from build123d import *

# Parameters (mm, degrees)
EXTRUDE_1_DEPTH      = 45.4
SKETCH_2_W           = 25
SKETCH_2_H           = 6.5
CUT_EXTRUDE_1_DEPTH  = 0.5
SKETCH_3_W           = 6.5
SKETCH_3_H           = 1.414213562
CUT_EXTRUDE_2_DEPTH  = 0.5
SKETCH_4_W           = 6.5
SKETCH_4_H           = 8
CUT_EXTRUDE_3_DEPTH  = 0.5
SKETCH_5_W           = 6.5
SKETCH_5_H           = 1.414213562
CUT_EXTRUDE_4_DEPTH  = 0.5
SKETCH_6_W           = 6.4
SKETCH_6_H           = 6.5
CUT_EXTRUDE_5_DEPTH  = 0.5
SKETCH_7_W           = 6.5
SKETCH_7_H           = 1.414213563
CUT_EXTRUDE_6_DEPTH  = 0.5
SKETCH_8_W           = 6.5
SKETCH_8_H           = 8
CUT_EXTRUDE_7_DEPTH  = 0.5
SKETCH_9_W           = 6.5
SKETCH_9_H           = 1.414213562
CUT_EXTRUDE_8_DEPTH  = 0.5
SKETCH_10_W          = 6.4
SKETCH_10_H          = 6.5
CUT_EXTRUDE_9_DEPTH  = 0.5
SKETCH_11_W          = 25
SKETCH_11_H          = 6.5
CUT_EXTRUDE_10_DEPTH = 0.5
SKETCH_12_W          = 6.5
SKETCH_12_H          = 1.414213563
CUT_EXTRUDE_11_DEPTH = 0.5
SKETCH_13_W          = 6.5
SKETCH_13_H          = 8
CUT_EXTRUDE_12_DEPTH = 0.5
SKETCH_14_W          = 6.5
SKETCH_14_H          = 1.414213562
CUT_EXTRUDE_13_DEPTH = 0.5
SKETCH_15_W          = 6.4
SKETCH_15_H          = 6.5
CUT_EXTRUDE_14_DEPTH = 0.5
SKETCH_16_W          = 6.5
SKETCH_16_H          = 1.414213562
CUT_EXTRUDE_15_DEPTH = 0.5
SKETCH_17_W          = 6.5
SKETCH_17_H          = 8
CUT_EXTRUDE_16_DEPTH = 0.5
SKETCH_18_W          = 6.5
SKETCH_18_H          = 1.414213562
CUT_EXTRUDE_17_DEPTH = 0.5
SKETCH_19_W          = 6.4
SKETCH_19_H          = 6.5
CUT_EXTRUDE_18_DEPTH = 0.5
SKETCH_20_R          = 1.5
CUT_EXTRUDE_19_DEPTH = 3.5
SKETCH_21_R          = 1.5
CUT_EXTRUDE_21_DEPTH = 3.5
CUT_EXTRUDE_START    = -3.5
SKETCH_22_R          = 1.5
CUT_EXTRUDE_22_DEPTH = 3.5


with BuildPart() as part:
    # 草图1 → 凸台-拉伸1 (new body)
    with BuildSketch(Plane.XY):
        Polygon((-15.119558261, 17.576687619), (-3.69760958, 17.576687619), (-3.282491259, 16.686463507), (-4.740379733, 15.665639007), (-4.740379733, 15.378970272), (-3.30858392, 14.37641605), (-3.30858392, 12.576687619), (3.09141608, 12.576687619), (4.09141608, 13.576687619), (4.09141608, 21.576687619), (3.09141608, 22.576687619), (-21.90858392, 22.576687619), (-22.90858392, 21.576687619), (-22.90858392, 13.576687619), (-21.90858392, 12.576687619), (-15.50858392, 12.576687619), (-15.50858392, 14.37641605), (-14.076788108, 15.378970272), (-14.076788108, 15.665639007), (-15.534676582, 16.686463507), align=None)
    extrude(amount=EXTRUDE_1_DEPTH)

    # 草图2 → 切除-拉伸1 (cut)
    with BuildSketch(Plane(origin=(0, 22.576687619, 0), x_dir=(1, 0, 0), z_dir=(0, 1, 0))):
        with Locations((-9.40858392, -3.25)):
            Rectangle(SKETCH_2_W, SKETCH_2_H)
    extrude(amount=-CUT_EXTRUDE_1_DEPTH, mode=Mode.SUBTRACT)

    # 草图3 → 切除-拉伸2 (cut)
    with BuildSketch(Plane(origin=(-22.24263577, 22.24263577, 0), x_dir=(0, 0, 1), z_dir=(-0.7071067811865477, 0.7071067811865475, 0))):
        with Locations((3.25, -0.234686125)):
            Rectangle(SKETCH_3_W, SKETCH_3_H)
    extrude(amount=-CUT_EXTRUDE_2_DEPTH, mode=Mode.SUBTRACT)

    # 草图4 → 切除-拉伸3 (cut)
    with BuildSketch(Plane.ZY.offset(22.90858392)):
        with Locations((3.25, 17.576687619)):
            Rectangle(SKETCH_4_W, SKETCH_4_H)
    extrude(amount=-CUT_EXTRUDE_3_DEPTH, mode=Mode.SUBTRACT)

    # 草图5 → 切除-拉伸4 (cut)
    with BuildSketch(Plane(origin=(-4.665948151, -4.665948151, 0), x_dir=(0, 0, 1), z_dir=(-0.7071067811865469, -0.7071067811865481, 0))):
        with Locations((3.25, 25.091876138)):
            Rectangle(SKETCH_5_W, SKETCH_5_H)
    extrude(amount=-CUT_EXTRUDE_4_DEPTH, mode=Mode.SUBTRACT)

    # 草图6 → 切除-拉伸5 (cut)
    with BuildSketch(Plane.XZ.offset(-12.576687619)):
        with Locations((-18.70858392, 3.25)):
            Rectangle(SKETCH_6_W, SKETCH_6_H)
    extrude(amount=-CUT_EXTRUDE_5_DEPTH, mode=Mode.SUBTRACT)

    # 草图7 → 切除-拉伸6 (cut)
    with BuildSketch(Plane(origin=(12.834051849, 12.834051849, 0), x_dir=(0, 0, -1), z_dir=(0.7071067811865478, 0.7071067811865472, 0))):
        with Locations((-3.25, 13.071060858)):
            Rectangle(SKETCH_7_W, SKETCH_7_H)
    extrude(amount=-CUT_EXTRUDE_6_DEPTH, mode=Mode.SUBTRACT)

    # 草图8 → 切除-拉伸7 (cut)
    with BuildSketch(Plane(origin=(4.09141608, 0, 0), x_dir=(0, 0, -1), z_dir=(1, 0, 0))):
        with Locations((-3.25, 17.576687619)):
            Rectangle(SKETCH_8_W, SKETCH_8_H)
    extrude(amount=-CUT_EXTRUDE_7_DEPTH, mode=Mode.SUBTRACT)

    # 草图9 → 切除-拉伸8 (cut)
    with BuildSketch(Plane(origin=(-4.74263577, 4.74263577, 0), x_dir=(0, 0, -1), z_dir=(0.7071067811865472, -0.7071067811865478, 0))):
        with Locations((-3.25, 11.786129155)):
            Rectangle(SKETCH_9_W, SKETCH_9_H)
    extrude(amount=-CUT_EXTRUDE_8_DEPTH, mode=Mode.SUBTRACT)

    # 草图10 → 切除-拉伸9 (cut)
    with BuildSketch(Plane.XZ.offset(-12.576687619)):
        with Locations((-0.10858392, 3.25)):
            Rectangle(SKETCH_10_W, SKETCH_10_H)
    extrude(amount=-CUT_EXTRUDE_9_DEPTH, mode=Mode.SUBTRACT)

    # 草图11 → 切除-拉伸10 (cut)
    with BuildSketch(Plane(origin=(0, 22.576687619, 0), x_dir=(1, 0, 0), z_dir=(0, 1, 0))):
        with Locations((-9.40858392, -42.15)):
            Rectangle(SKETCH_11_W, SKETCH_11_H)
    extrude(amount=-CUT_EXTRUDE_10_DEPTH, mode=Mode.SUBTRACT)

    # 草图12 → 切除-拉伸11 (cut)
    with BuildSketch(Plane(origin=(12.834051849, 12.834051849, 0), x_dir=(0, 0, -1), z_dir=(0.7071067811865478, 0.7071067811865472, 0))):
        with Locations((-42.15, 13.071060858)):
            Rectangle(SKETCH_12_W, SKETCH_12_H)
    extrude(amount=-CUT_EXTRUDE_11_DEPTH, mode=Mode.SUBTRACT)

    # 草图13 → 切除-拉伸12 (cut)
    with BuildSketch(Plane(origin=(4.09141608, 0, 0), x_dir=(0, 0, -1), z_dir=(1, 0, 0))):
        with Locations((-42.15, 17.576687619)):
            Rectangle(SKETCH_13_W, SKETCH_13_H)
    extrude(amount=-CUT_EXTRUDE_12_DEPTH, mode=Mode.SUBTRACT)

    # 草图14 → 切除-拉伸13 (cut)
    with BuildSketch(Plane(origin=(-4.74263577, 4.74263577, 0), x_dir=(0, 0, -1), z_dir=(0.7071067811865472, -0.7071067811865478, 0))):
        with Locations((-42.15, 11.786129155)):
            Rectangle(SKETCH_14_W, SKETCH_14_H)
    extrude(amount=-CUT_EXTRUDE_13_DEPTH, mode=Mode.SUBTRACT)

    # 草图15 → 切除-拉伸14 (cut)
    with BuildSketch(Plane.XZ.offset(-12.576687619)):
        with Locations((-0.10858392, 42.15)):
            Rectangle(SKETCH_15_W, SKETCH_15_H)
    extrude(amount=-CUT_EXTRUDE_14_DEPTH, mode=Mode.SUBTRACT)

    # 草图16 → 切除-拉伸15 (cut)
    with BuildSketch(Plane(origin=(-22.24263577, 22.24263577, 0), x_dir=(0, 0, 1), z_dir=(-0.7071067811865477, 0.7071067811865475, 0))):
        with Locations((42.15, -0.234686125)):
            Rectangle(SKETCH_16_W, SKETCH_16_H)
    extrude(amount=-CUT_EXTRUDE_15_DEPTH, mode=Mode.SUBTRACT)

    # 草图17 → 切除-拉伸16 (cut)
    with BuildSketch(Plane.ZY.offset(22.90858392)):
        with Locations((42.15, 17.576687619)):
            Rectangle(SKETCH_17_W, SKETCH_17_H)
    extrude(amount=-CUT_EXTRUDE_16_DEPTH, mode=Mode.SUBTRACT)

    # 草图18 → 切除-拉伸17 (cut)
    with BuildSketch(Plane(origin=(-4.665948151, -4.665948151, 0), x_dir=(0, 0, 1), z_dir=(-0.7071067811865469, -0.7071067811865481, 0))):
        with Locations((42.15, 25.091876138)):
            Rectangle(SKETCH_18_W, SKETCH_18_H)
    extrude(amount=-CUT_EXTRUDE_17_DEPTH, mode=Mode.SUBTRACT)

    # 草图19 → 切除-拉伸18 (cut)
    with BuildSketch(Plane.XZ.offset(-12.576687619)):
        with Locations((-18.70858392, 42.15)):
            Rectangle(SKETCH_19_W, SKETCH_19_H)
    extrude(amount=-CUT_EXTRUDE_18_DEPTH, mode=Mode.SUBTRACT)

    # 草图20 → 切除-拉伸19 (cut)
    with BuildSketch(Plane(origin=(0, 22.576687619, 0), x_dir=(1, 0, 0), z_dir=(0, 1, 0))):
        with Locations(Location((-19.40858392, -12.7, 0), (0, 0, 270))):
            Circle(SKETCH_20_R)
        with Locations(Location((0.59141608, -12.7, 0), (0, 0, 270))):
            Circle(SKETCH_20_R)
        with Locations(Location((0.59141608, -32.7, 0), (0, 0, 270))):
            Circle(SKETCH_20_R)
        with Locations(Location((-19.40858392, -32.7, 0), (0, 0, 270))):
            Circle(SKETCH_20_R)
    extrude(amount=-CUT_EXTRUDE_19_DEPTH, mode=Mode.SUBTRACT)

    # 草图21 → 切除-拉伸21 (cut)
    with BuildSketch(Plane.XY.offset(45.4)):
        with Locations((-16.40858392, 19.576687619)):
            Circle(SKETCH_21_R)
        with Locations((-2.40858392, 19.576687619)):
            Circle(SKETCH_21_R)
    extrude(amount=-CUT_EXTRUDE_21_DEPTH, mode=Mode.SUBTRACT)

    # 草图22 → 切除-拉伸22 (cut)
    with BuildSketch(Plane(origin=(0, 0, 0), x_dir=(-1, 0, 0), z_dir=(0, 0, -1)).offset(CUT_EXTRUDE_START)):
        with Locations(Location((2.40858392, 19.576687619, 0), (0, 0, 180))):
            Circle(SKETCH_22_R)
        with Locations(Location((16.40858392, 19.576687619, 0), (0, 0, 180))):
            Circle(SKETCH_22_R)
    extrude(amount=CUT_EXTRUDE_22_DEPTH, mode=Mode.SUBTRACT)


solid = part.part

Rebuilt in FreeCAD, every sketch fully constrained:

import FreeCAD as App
import Part
import Sketcher
Q = App.Units.Quantity

doc = App.newDocument("Part")
params = doc.addObject("Spreadsheet::Sheet", "Params")
for row, (alias, value) in enumerate([
    ("sketch1_width", "25 mm"),
    ("sketch1_height", "8 mm"),
    ("sketch1_width2", "6.4 mm"),
    ("pad1_length", "45.4 mm"),
    ("sketch2_width", "25 mm"),
    ("sketch2_height", "6.5 mm"),
    ("pocket1_length", "0.5 mm"),
    ("sketch3_width", "6.5 mm"),
    ("pocket2_length", "0.5 mm"),
    ("sketch4_width", "8 mm"),
    ("sketch4_height", "6.5 mm"),
    ("pocket3_length", "0.5 mm"),
    ("sketch5_width", "6.5 mm"),
    ("pocket4_length", "0.5 mm"),
    ("sketch6_width", "6.4 mm"),
    ("sketch6_height", "6.5 mm"),
    ("pocket5_length", "0.5 mm"),
    ("sketch7_width", "6.5 mm"),
    ("pocket6_length", "0.5 mm"),
    ("sketch8_width", "8 mm"),
    ("sketch8_height", "6.5 mm"),
    ("pocket7_length", "0.5 mm"),
    ("sketch9_width", "6.5 mm"),
    ("pocket8_length", "0.5 mm"),
    ("sketch10_width", "6.4 mm"),
    ("sketch10_height", "6.5 mm"),
    ("pocket9_length", "0.5 mm"),
    ("sketch11_width", "25 mm"),
    ("sketch11_height", "6.5 mm"),
    ("pocket10_length", "0.5 mm"),
    ("sketch12_width", "6.5 mm"),
    ("pocket11_length", "0.5 mm"),
    ("sketch13_width", "8 mm"),
    ("sketch13_height", "6.5 mm"),
    ("pocket12_length", "0.5 mm"),
    ("sketch14_width", "6.5 mm"),
    ("pocket13_length", "0.5 mm"),
    ("sketch15_width", "6.4 mm"),
    ("sketch15_height", "6.5 mm"),
    ("pocket14_length", "0.5 mm"),
    ("sketch16_width", "6.5 mm"),
    ("pocket15_length", "0.5 mm"),
    ("sketch17_width", "8 mm"),
    ("sketch17_height", "6.5 mm"),
    ("pocket16_length", "0.5 mm"),
    ("sketch18_width", "6.5 mm"),
    ("pocket17_length", "0.5 mm"),
    ("sketch19_width", "6.4 mm"),
    ("sketch19_height", "6.5 mm"),
    ("pocket18_length", "0.5 mm"),
    ("sketch20_diameter", "3 mm"),
    ("pocket19_length", "3.5 mm"),
    ("sketch21_diameter", "3 mm"),
    ("pocket20_length", "3.5 mm"),
    ("sketch22_diameter", "3 mm"),
    ("pocket21_length", "3.5 mm"),
], start=1):
    params.set(f"A{row}", alias)
    params.set(f"B{row}", "=" + value)
    params.setAlias(f"B{row}", alias)

body = doc.addObject("PartDesign::Body", "Body")

# Sketch on XY plane
sketch1 = doc.addObject("Sketcher::SketchObject", "Sketch")
body.addObject(sketch1)
sketch1.AttachmentSupport = (doc.XY_Plane, [""])
sketch1.MapMode = "FlatFace"
sketch1.addGeometry([
    Part.LineSegment(App.Vector(-15.12, 17.58, 0), App.Vector(-3.7, 17.58, 0)),  # 0
    Part.LineSegment(App.Vector(-3.7, 17.58, 0), App.Vector(-3.28, 16.69, 0)),  # 1
    Part.LineSegment(App.Vector(-3.28, 16.69, 0), App.Vector(-4.74, 15.67, 0)),  # 2
    Part.LineSegment(App.Vector(-4.74, 15.67, 0), App.Vector(-4.74, 15.38, 0)),  # 3
    Part.LineSegment(App.Vector(-4.74, 15.38, 0), App.Vector(-3.31, 14.38, 0)),  # 4
    Part.LineSegment(App.Vector(-3.31, 14.38, 0), App.Vector(-3.31, 12.58, 0)),  # 5
    Part.LineSegment(App.Vector(-3.31, 12.58, 0), App.Vector(3.09, 12.58, 0)),  # 6
    Part.LineSegment(App.Vector(3.09, 12.58, 0), App.Vector(4.09, 13.58, 0)),  # 7
    Part.LineSegment(App.Vector(4.09, 13.58, 0), App.Vector(4.09, 21.58, 0)),  # 8
    Part.LineSegment(App.Vector(4.09, 21.58, 0), App.Vector(3.09, 22.58, 0)),  # 9
    Part.LineSegment(App.Vector(3.09, 22.58, 0), App.Vector(-21.91, 22.58, 0)),  # 10
    Part.LineSegment(App.Vector(-21.91, 22.58, 0), App.Vector(-22.91, 21.58, 0)),  # 11
    Part.LineSegment(App.Vector(-22.91, 21.58, 0), App.Vector(-22.91, 13.58, 0)),  # 12
    Part.LineSegment(App.Vector(-22.91, 13.58, 0), App.Vector(-21.91, 12.58, 0)),  # 13
    Part.LineSegment(App.Vector(-21.91, 12.58, 0), App.Vector(-15.51, 12.58, 0)),  # 14
    Part.LineSegment(App.Vector(-15.51, 12.58, 0), App.Vector(-15.51, 14.38, 0)),  # 15
    Part.LineSegment(App.Vector(-15.51, 14.38, 0), App.Vector(-14.08, 15.38, 0)),  # 16
    Part.LineSegment(App.Vector(-14.08, 15.38, 0), App.Vector(-14.08, 15.67, 0)),  # 17
    Part.LineSegment(App.Vector(-14.08, 15.67, 0), App.Vector(-15.53, 16.69, 0)),  # 18
    Part.LineSegment(App.Vector(-15.53, 16.69, 0), App.Vector(-15.12, 17.58, 0)),  # 19
], False)
sketch1.addConstraint([
    Sketcher.Constraint("Coincident", 0, 2, 1, 1),
    Sketcher.Constraint("Coincident", 1, 2, 2, 1),
    Sketcher.Constraint("Coincident", 2, 2, 3, 1),
    Sketcher.Constraint("Coincident", 3, 2, 4, 1),
    Sketcher.Constraint("Coincident", 4, 2, 5, 1),
    Sketcher.Constraint("Coincident", 5, 2, 6, 1),
    Sketcher.Constraint("Coincident", 6, 2, 7, 1),
    Sketcher.Constraint("Coincident", 7, 2, 8, 1),
    Sketcher.Constraint("Coincident", 8, 2, 9, 1),
    Sketcher.Constraint("Coincident", 9, 2, 10, 1),
    Sketcher.Constraint("Coincident", 10, 2, 11, 1),
    Sketcher.Constraint("Coincident", 11, 2, 12, 1),
    Sketcher.Constraint("Coincident", 12, 2, 13, 1),
    Sketcher.Constraint("Coincident", 13, 2, 14, 1),
    Sketcher.Constraint("Coincident", 14, 2, 15, 1),
    Sketcher.Constraint("Coincident", 15, 2, 16, 1),
    Sketcher.Constraint("Coincident", 16, 2, 17, 1),
    Sketcher.Constraint("Coincident", 17, 2, 18, 1),
    Sketcher.Constraint("Coincident", 18, 2, 19, 1),
    Sketcher.Constraint("Coincident", 19, 2, 0, 1),
    Sketcher.Constraint("Horizontal", 0),
    Sketcher.Constraint("Vertical", 3),
    Sketcher.Constraint("Vertical", 5),
    Sketcher.Constraint("Horizontal", 6),
    Sketcher.Constraint("Vertical", 8),
    Sketcher.Constraint("Horizontal", 10),
    Sketcher.Constraint("Vertical", 12),
    Sketcher.Constraint("Horizontal", 14),
    Sketcher.Constraint("Vertical", 15),
    Sketcher.Constraint("Vertical", 17),
    Sketcher.Constraint("Perpendicular", 7, 9),
    Sketcher.Constraint("Perpendicular", 9, 11),
    Sketcher.Constraint("Perpendicular", 11, 13),
    Sketcher.Constraint("Parallel", 2, 16),
    Sketcher.Constraint("Parallel", 4, 18),
    Sketcher.Constraint("Horizontal", 8, 2, 11, 2),
    Sketcher.Constraint("Horizontal", 7, 2, 12, 2),
    Sketcher.Constraint("Horizontal", 6, 2, 13, 2),
    Sketcher.Constraint("Horizontal", 4, 2, 15, 2),
    Sketcher.Constraint("Horizontal", 3, 2, 16, 2),
    Sketcher.Constraint("Horizontal", 2, 2, 17, 2),
    Sketcher.Constraint("Horizontal", 1, 2, 18, 2),
    Sketcher.Constraint("Vertical", 6, 2, 9, 2),
    Sketcher.Constraint("Vertical", 10, 2, 13, 2),
    Sketcher.Constraint("Equal", 6, 14),
    Sketcher.Constraint("Equal", 4, 16),
    Sketcher.Constraint("Equal", 1, 19),
    Sketcher.Constraint("DistanceX", 10, 2, 10, 1, 25.0),
    Sketcher.Constraint("DistanceY", 8, 1, 8, 2, 8.0),
    Sketcher.Constraint("Angle", 1, Q("-65 deg")),
    Sketcher.Constraint("Angle", 2, Q("-145 deg")),
    Sketcher.Constraint("DistanceX", 6, 1, 6, 2, 6.4),
    Sketcher.Constraint("DistanceY", 5, 2, 0, 2, 5.0),
    Sketcher.Constraint("DistanceX", 6, 2, 7, 2, 1.0),
    Sketcher.Constraint("Distance", 4, 1.7479),
    Sketcher.Constraint("DistanceX", 0, 1, 0, 2, 11.421949),
    Sketcher.Constraint("DistanceY", 3, 2, 3, 1, 0.286669),
    Sketcher.Constraint("DistanceY", 5, 2, 5, 1, 1.799728),
    Sketcher.Constraint("DistanceX", 0, 2, -1, 1, 3.69761),
    Sketcher.Constraint("DistanceY", -1, 1, 2, 2, 15.665639),
])
sketch1.setExpression("Constraints[47]", "Params.sketch1_width")
sketch1.setExpression("Constraints[48]", "Params.sketch1_height")
sketch1.setExpression("Constraints[51]", "Params.sketch1_width2")
pad1 = doc.addObject("PartDesign::Pad", "Pad")
body.addObject(pad1)
pad1.Profile = sketch1
pad1.setExpression("Length", "Params.pad1_length")

# Sketch on XZ plane
sketch2 = doc.addObject("Sketcher::SketchObject", "Sketch001")
body.addObject(sketch2)
sketch2.AttachmentSupport = (doc.XZ_Plane, [""])
sketch2.MapMode = "FlatFace"
sketch2.AttachmentOffset = App.Placement(App.Vector(0, 0, -22.576688), App.Rotation())
sketch2.addGeometry([
    Part.LineSegment(App.Vector(-22, 0, 0), App.Vector(-22, 6, 0)),
    Part.LineSegment(App.Vector(-22, 6, 0), App.Vector(3, 6, 0)),
    Part.LineSegment(App.Vector(3, 6, 0), App.Vector(3, 0, 0)),
    Part.LineSegment(App.Vector(3, 0, 0), App.Vector(-22, 0, 0)),
], False)
sketch2.addConstraint([
    Sketcher.Constraint("Coincident", 0, 2, 1, 1),
    Sketcher.Constraint("Coincident", 1, 2, 2, 1),
    Sketcher.Constraint("Coincident", 2, 2, 3, 1),
    Sketcher.Constraint("Coincident", 3, 2, 0, 1),
    Sketcher.Constraint("Vertical", 0),
    Sketcher.Constraint("Horizontal", 1),
    Sketcher.Constraint("Vertical", 2),
    Sketcher.Constraint("Horizontal", 3),
    Sketcher.Constraint("PointOnObject", 2, 2, -1),
    Sketcher.Constraint("DistanceX", 1, 1, 1, 2, 25.0),
    Sketcher.Constraint("DistanceY", 0, 1, 0, 2, 6.5),
    Sketcher.Constraint("DistanceX", 0, 2, -1, 1, 21.908584),
])
sketch2.setExpression("Constraints[9]", "Params.sketch2_width")
sketch2.setExpression("Constraints[10]", "Params.sketch2_height")
pocket1 = doc.addObject("PartDesign::Pocket", "Pocket")
body.addObject(pocket1)
pocket1.Profile = sketch2
pocket1.setExpression("Length", "Params.pocket1_length")
pocket1.Reversed = True

# Sketch on an angled plane
sketch3 = doc.addObject("Sketcher::SketchObject", "Sketch002")
body.addObject(sketch3)
sketch3.Placement = App.Placement(App.Vector(-22.242636, 22.242636, 0), App.Rotation(App.Vector(0, 0, 1), App.Vector(0.707106781, 0.707106781, 0), App.Vector(-0.707106781, 0.707106781, 0), "ZXY"))
sketch3.addGeometry([
    Part.LineSegment(App.Vector(0, 0.5, 0), App.Vector(0, -0.9, 0)),
    Part.LineSegment(App.Vector(0, -0.9, 0), App.Vector(6.5, -0.9, 0)),
    Part.LineSegment(App.Vector(6.5, -0.9, 0), App.Vector(6.5, 0.5, 0)),
    Part.LineSegment(App.Vector(6.5, 0.5, 0), App.Vector(0, 0.5, 0)),
], False)
sketch3.addConstraint([
    Sketcher.Constraint("Coincident", 0, 2, 1, 1),
    Sketcher.Constraint("Coincident", 1, 2, 2, 1),
    Sketcher.Constraint("Coincident", 2, 2, 3, 1),
    Sketcher.Constraint("Coincident", 3, 2, 0, 1),
    Sketcher.Constraint("Vertical", 0),
    Sketcher.Constraint("Horizontal", 1),
    Sketcher.Constraint("Vertical", 2),
    Sketcher.Constraint("Horizontal", 3),
    Sketcher.Constraint("PointOnObject", 0, 2, -2),
    Sketcher.Constraint("DistanceX", 1, 1, 1, 2, 6.5),
    Sketcher.Constraint("DistanceY", 0, 2, 0, 1, 1.414214),
    Sketcher.Constraint("DistanceY", -1, 1, 2, 2, 0.472421),
])
sketch3.setExpression("Constraints[9]", "Params.sketch3_width")
pocket2 = doc.addObject("PartDesign::Pocket", "Pocket001")
body.addObject(pocket2)
pocket2.Profile = sketch3
pocket2.setExpression("Length", "Params.pocket2_length")

# Sketch on YZ plane
sketch4 = doc.addObject("Sketcher::SketchObject", "Sketch003")
body.addObject(sketch4)
sketch4.AttachmentSupport = (doc.YZ_Plane, [""])
sketch4.MapMode = "FlatFace"
sketch4.AttachmentOffset = App.Placement(App.Vector(0, 0, -22.908584), App.Rotation())
sketch4.addGeometry([
    Part.LineSegment(App.Vector(22, 0, 0), App.Vector(14, 0, 0)),
    Part.LineSegment(App.Vector(14, 0, 0), App.Vector(14, 6, 0)),
    Part.LineSegment(App.Vector(14, 6, 0), App.Vector(22, 6, 0)),
    Part.LineSegment(App.Vector(22, 6, 0), App.Vector(22, 0, 0)),
], False)
sketch4.addConstraint([
    Sketcher.Constraint("Coincident", 0, 2, 1, 1),
    Sketcher.Constraint("Coincident", 1, 2, 2, 1),
    Sketcher.Constraint("Coincident", 2, 2, 3, 1),
    Sketcher.Constraint("Coincident", 3, 2, 0, 1),
    Sketcher.Constraint("Horizontal", 0),
    Sketcher.Constraint("Vertical", 1),
    Sketcher.Constraint("Horizontal", 2),
    Sketcher.Constraint("Vertical", 3),
    Sketcher.Constraint("PointOnObject", 0, 2, -1),
    Sketcher.Constraint("DistanceX", 0, 2, 0, 1, 8.0),
    Sketcher.Constraint("DistanceY", 1, 1, 1, 2, 6.5),
    Sketcher.Constraint("DistanceX", -1, 1, 0, 2, 13.576688),
])
sketch4.setExpression("Constraints[9]", "Params.sketch4_width")
sketch4.setExpression("Constraints[10]", "Params.sketch4_height")
pocket3 = doc.addObject("PartDesign::Pocket", "Pocket002")
body.addObject(pocket3)
pocket3.Profile = sketch4
pocket3.setExpression("Length", "Params.pocket3_length")
pocket3.Reversed = True

# Sketch on an angled plane
sketch5 = doc.addObject("Sketcher::SketchObject", "Sketch004")
body.addObject(sketch5)
sketch5.Placement = App.Placement(App.Vector(-4.665948, -4.665948, 0), App.Rotation(App.Vector(0, 0, 1), App.Vector(-0.707106781, 0.707106781, 0), App.Vector(-0.707106781, -0.707106781, 0), "ZXY"))
sketch5.addGeometry([
    Part.LineSegment(App.Vector(0, 25.8, 0), App.Vector(0, 24.4, 0)),
    Part.LineSegment(App.Vector(0, 24.4, 0), App.Vector(6.5, 24.4, 0)),
    Part.LineSegment(App.Vector(6.5, 24.4, 0), App.Vector(6.5, 25.8, 0)),
    Part.LineSegment(App.Vector(6.5, 25.8, 0), App.Vector(0, 25.8, 0)),
], False)
sketch5.addConstraint([
    Sketcher.Constraint("Coincident", 0, 2, 1, 1),
    Sketcher.Constraint("Coincident", 1, 2, 2, 1),
    Sketcher.Constraint("Coincident", 2, 2, 3, 1),
    Sketcher.Constraint("Coincident", 3, 2, 0, 1),
    Sketcher.Constraint("Vertical", 0),
    Sketcher.Constraint("Horizontal", 1),
    Sketcher.Constraint("Vertical", 2),
    Sketcher.Constraint("Horizontal", 3),
    Sketcher.Constraint("PointOnObject", 0, 2, -2),
    Sketcher.Constraint("DistanceX", 1, 1, 1, 2, 6.5),
    Sketcher.Constraint("DistanceY", 0, 2, 0, 1, 1.414214),
    Sketcher.Constraint("DistanceY", -1, 1, 0, 2, 24.384769),
])
sketch5.setExpression("Constraints[9]", "Params.sketch5_width")
pocket4 = doc.addObject("PartDesign::Pocket", "Pocket003")
body.addObject(pocket4)
pocket4.Profile = sketch5
pocket4.setExpression("Length", "Params.pocket4_length")

# Sketch on XZ plane
sketch6 = doc.addObject("Sketcher::SketchObject", "Sketch005")
body.addObject(sketch6)
sketch6.AttachmentSupport = (doc.XZ_Plane, [""])
sketch6.MapMode = "FlatFace"
sketch6.AttachmentOffset = App.Placement(App.Vector(0, 0, -12.576688), App.Rotation())
sketch6.addGeometry([
    Part.LineSegment(App.Vector(-22, 6, 0), App.Vector(-22, 0, 0)),
    Part.LineSegment(App.Vector(-22, 0, 0), App.Vector(-16, 0, 0)),
    Part.LineSegment(App.Vector(-16, 0, 0), App.Vector(-16, 6, 0)),
    Part.LineSegment(App.Vector(-16, 6, 0), App.Vector(-22, 6, 0)),
], False)
sketch6.addConstraint([
    Sketcher.Constraint("Coincident", 0, 2, 1, 1),
    Sketcher.Constraint("Coincident", 1, 2, 2, 1),
    Sketcher.Constraint("Coincident", 2, 2, 3, 1),
    Sketcher.Constraint("Coincident", 3, 2, 0, 1),
    Sketcher.Constraint("Vertical", 0),
    Sketcher.Constraint("Horizontal", 1),
    Sketcher.Constraint("Vertical", 2),
    Sketcher.Constraint("Horizontal", 3),
    Sketcher.Constraint("PointOnObject", 0, 2, -1),
    Sketcher.Constraint("DistanceX", 1, 1, 1, 2, 6.4),
    Sketcher.Constraint("DistanceY", 0, 2, 0, 1, 6.5),
    Sketcher.Constraint("DistanceX", 0, 2, -1, 1, 21.908584),
])
sketch6.setExpression("Constraints[9]", "Params.sketch6_width")
sketch6.setExpression("Constraints[10]", "Params.sketch6_height")
pocket5 = doc.addObject("PartDesign::Pocket", "Pocket004")
body.addObject(pocket5)
pocket5.Profile = sketch6
pocket5.setExpression("Length", "Params.pocket5_length")

# Sketch on an angled plane
sketch7 = doc.addObject("Sketcher::SketchObject", "Sketch006")
body.addObject(sketch7)
sketch7.Placement = App.Placement(App.Vector(12.834052, 12.834052, 0), App.Rotation(App.Vector(0, 0, -1), App.Vector(-0.707106781, 0.707106781, 0), App.Vector(0.707106781, 0.707106781, 0), "ZXY"))
sketch7.addGeometry([
    Part.LineSegment(App.Vector(-6.5, 13.8, 0), App.Vector(-6.5, 12.4, 0)),
    Part.LineSegment(App.Vector(-6.5, 12.4, 0), App.Vector(0, 12.4, 0)),
    Part.LineSegment(App.Vector(0, 12.4, 0), App.Vector(0, 13.8, 0)),
    Part.LineSegment(App.Vector(0, 13.8, 0), App.Vector(-6.5, 13.8, 0)),
], False)
sketch7.addConstraint([
    Sketcher.Constraint("Coincident", 0, 2, 1, 1),
    Sketcher.Constraint("Coincident", 1, 2, 2, 1),
    Sketcher.Constraint("Coincident", 2, 2, 3, 1),
    Sketcher.Constraint("Coincident", 3, 2, 0, 1),
    Sketcher.Constraint("Vertical", 0),
    Sketcher.Constraint("Horizontal", 1),
    Sketcher.Constraint("Vertical", 2),
    Sketcher.Constraint("Horizontal", 3),
    Sketcher.Constraint("PointOnObject", 1, 2, -2),
    Sketcher.Constraint("DistanceX", 1, 1, 1, 2, 6.5),
    Sketcher.Constraint("DistanceY", 0, 2, 0, 1, 1.414214),
    Sketcher.Constraint("DistanceY", -1, 1, 0, 2, 12.363954),
])
sketch7.setExpression("Constraints[9]", "Params.sketch7_width")
pocket6 = doc.addObject("PartDesign::Pocket", "Pocket005")
body.addObject(pocket6)
pocket6.Profile = sketch7
pocket6.setExpression("Length", "Params.pocket6_length")

# Sketch on YZ plane
sketch8 = doc.addObject("Sketcher::SketchObject", "Sketch007")
body.addObject(sketch8)
sketch8.AttachmentSupport = (doc.YZ_Plane, [""])
sketch8.MapMode = "FlatFace"
sketch8.AttachmentOffset = App.Placement(App.Vector(0, 0, 4.091416), App.Rotation())
sketch8.addGeometry([
    Part.LineSegment(App.Vector(22, 6, 0), App.Vector(14, 6, 0)),
    Part.LineSegment(App.Vector(14, 6, 0), App.Vector(14, 0, 0)),
    Part.LineSegment(App.Vector(14, 0, 0), App.Vector(22, 0, 0)),
    Part.LineSegment(App.Vector(22, 0, 0), App.Vector(22, 6, 0)),
], False)
sketch8.addConstraint([
    Sketcher.Constraint("Coincident", 0, 2, 1, 1),
    Sketcher.Constraint("Coincident", 1, 2, 2, 1),
    Sketcher.Constraint("Coincident", 2, 2, 3, 1),
    Sketcher.Constraint("Coincident", 3, 2, 0, 1),
    Sketcher.Constraint("Horizontal", 0),
    Sketcher.Constraint("Vertical", 1),
    Sketcher.Constraint("Horizontal", 2),
    Sketcher.Constraint("Vertical", 3),
    Sketcher.Constraint("PointOnObject", 1, 2, -1),
    Sketcher.Constraint("DistanceX", 0, 2, 0, 1, 8.0),
    Sketcher.Constraint("DistanceY", 1, 2, 1, 1, 6.5),
    Sketcher.Constraint("DistanceX", -1, 1, 0, 2, 13.576688),
])
sketch8.setExpression("Constraints[9]", "Params.sketch8_width")
sketch8.setExpression("Constraints[10]", "Params.sketch8_height")
pocket7 = doc.addObject("PartDesign::Pocket", "Pocket006")
body.addObject(pocket7)
pocket7.Profile = sketch8
pocket7.setExpression("Length", "Params.pocket7_length")

# Sketch on an angled plane
sketch9 = doc.addObject("Sketcher::SketchObject", "Sketch008")
body.addObject(sketch9)
sketch9.Placement = App.Placement(App.Vector(-4.742636, 4.742636, 0), App.Rotation(App.Vector(0, 0, -1), App.Vector(0.707106781, 0.707106781, 0), App.Vector(0.707106781, -0.707106781, 0), "ZXY"))
sketch9.addGeometry([
    Part.LineSegment(App.Vector(-6.5, 12.5, 0), App.Vector(-6.5, 11.1, 0)),
    Part.LineSegment(App.Vector(-6.5, 11.1, 0), App.Vector(0, 11.1, 0)),
    Part.LineSegment(App.Vector(0, 11.1, 0), App.Vector(0, 12.5, 0)),
    Part.LineSegment(App.Vector(0, 12.5, 0), App.Vector(-6.5, 12.5, 0)),
], False)
sketch9.addConstraint([
    Sketcher.Constraint("Coincident", 0, 2, 1, 1),
    Sketcher.Constraint("Coincident", 1, 2, 2, 1),
    Sketcher.Constraint("Coincident", 2, 2, 3, 1),
    Sketcher.Constraint("Coincident", 3, 2, 0, 1),
    Sketcher.Constraint("Vertical", 0),
    Sketcher.Constraint("Horizontal", 1),
    Sketcher.Constraint("Vertical", 2),
    Sketcher.Constraint("Horizontal", 3),
    Sketcher.Constraint("PointOnObject", 1, 2, -2),
    Sketcher.Constraint("DistanceX", 1, 1, 1, 2, 6.5),
    Sketcher.Constraint("DistanceY", 0, 2, 0, 1, 1.414214),
    Sketcher.Constraint("DistanceY", -1, 1, 0, 2, 11.079022),
])
sketch9.setExpression("Constraints[9]", "Params.sketch9_width")
pocket8 = doc.addObject("PartDesign::Pocket", "Pocket007")
body.addObject(pocket8)
pocket8.Profile = sketch9
pocket8.setExpression("Length", "Params.pocket8_length")

# Sketch on XZ plane
sketch10 = doc.addObject("Sketcher::SketchObject", "Sketch009")
body.addObject(sketch10)
sketch10.AttachmentSupport = (doc.XZ_Plane, [""])
sketch10.MapMode = "FlatFace"
sketch10.AttachmentOffset = App.Placement(App.Vector(0, 0, -12.576688), App.Rotation())
sketch10.addGeometry([
    Part.LineSegment(App.Vector(-3, 6, 0), App.Vector(-3, 0, 0)),
    Part.LineSegment(App.Vector(-3, 0, 0), App.Vector(3, 0, 0)),
    Part.LineSegment(App.Vector(3, 0, 0), App.Vector(3, 6, 0)),
    Part.LineSegment(App.Vector(3, 6, 0), App.Vector(-3, 6, 0)),
], False)
sketch10.addConstraint([
    Sketcher.Constraint("Coincident", 0, 2, 1, 1),
    Sketcher.Constraint("Coincident", 1, 2, 2, 1),
    Sketcher.Constraint("Coincident", 2, 2, 3, 1),
    Sketcher.Constraint("Coincident", 3, 2, 0, 1),
    Sketcher.Constraint("Vertical", 0),
    Sketcher.Constraint("Horizontal", 1),
    Sketcher.Constraint("Vertical", 2),
    Sketcher.Constraint("Horizontal", 3),
    Sketcher.Constraint("PointOnObject", 0, 2, -1),
    Sketcher.Constraint("DistanceX", 1, 1, 1, 2, 6.4),
    Sketcher.Constraint("DistanceY", 0, 2, 0, 1, 6.5),
    Sketcher.Constraint("DistanceX", 0, 2, -1, 1, 3.308584),
])
sketch10.setExpression("Constraints[9]", "Params.sketch10_width")
sketch10.setExpression("Constraints[10]", "Params.sketch10_height")
pocket9 = doc.addObject("PartDesign::Pocket", "Pocket008")
body.addObject(pocket9)
pocket9.Profile = sketch10
pocket9.setExpression("Length", "Params.pocket9_length")

# Sketch on XZ plane
sketch11 = doc.addObject("Sketcher::SketchObject", "Sketch010")
body.addObject(sketch11)
sketch11.AttachmentSupport = (doc.XZ_Plane, [""])
sketch11.MapMode = "FlatFace"
sketch11.AttachmentOffset = App.Placement(App.Vector(0, 0, -22.576688), App.Rotation())
sketch11.addGeometry([
    Part.LineSegment(App.Vector(-22, 39, 0), App.Vector(-22, 45, 0)),
    Part.LineSegment(App.Vector(-22, 45, 0), App.Vector(3, 45, 0)),
    Part.LineSegment(App.Vector(3, 45, 0), App.Vector(3, 39, 0)),
    Part.LineSegment(App.Vector(3, 39, 0), App.Vector(-22, 39, 0)),
], False)
sketch11.addConstraint([
    Sketcher.Constraint("Coincident", 0, 2, 1, 1),
    Sketcher.Constraint("Coincident", 1, 2, 2, 1),
    Sketcher.Constraint("Coincident", 2, 2, 3, 1),
    Sketcher.Constraint("Coincident", 3, 2, 0, 1),
    Sketcher.Constraint("Vertical", 0),
    Sketcher.Constraint("Horizontal", 1),
    Sketcher.Constraint("Vertical", 2),
    Sketcher.Constraint("Horizontal", 3),
    Sketcher.Constraint("DistanceX", 1, 1, 1, 2, 25.0),
    Sketcher.Constraint("DistanceY", 0, 1, 0, 2, 6.5),
    Sketcher.Constraint("DistanceY", -1, 1, 0, 2, 45.4),
    Sketcher.Constraint("DistanceX", 0, 2, -1, 1, 21.908584),
])
sketch11.setExpression("Constraints[8]", "Params.sketch11_width")
sketch11.setExpression("Constraints[9]", "Params.sketch11_height")
pocket10 = doc.addObject("PartDesign::Pocket", "Pocket009")
body.addObject(pocket10)
pocket10.Profile = sketch11
pocket10.setExpression("Length", "Params.pocket10_length")
pocket10.Reversed = True

# Sketch on an angled plane
sketch12 = doc.addObject("Sketcher::SketchObject", "Sketch011")
body.addObject(sketch12)
sketch12.Placement = App.Placement(App.Vector(12.834052, 12.834052, 0), App.Rotation(App.Vector(0, 0, -1), App.Vector(-0.707106781, 0.707106781, 0), App.Vector(0.707106781, 0.707106781, 0), "ZXY"))
sketch12.addGeometry([
    Part.LineSegment(App.Vector(-45.4, 13.8, 0), App.Vector(-45.4, 12.4, 0)),
    Part.LineSegment(App.Vector(-45.4, 12.4, 0), App.Vector(-38.9, 12.4, 0)),
    Part.LineSegment(App.Vector(-38.9, 12.4, 0), App.Vector(-38.9, 13.8, 0)),
    Part.LineSegment(App.Vector(-38.9, 13.8, 0), App.Vector(-45.4, 13.8, 0)),
], False)
sketch12.addConstraint([
    Sketcher.Constraint("Coincident", 0, 2, 1, 1),
    Sketcher.Constraint("Coincident", 1, 2, 2, 1),
    Sketcher.Constraint("Coincident", 2, 2, 3, 1),
    Sketcher.Constraint("Coincident", 3, 2, 0, 1),
    Sketcher.Constraint("Vertical", 0),
    Sketcher.Constraint("Horizontal", 1),
    Sketcher.Constraint("Vertical", 2),
    Sketcher.Constraint("Horizontal", 3),
    Sketcher.Constraint("DistanceX", 1, 1, 1, 2, 6.5),
    Sketcher.Constraint("DistanceX", 0, 2, -1, 1, 45.4),
    Sketcher.Constraint("DistanceY", 0, 2, 0, 1, 1.414214),
    Sketcher.Constraint("DistanceY", -1, 1, 0, 2, 12.363954),
])
sketch12.setExpression("Constraints[8]", "Params.sketch12_width")
pocket11 = doc.addObject("PartDesign::Pocket", "Pocket010")
body.addObject(pocket11)
pocket11.Profile = sketch12
pocket11.setExpression("Length", "Params.pocket11_length")

# Sketch on YZ plane
sketch13 = doc.addObject("Sketcher::SketchObject", "Sketch012")
body.addObject(sketch13)
sketch13.AttachmentSupport = (doc.YZ_Plane, [""])
sketch13.MapMode = "FlatFace"
sketch13.AttachmentOffset = App.Placement(App.Vector(0, 0, 4.091416), App.Rotation())
sketch13.addGeometry([
    Part.LineSegment(App.Vector(22, 45, 0), App.Vector(14, 45, 0)),
    Part.LineSegment(App.Vector(14, 45, 0), App.Vector(14, 39, 0)),
    Part.LineSegment(App.Vector(14, 39, 0), App.Vector(22, 39, 0)),
    Part.LineSegment(App.Vector(22, 39, 0), App.Vector(22, 45, 0)),
], False)
sketch13.addConstraint([
    Sketcher.Constraint("Coincident", 0, 2, 1, 1),
    Sketcher.Constraint("Coincident", 1, 2, 2, 1),
    Sketcher.Constraint("Coincident", 2, 2, 3, 1),
    Sketcher.Constraint("Coincident", 3, 2, 0, 1),
    Sketcher.Constraint("Horizontal", 0),
    Sketcher.Constraint("Vertical", 1),
    Sketcher.Constraint("Horizontal", 2),
    Sketcher.Constraint("Vertical", 3),
    Sketcher.Constraint("DistanceX", 0, 2, 0, 1, 8.0),
    Sketcher.Constraint("DistanceY", 1, 2, 1, 1, 6.5),
    Sketcher.Constraint("DistanceY", -1, 1, 0, 2, 45.4),
    Sketcher.Constraint("DistanceX", -1, 1, 0, 2, 13.576688),
])
sketch13.setExpression("Constraints[8]", "Params.sketch13_width")
sketch13.setExpression("Constraints[9]", "Params.sketch13_height")
pocket12 = doc.addObject("PartDesign::Pocket", "Pocket011")
body.addObject(pocket12)
pocket12.Profile = sketch13
pocket12.setExpression("Length", "Params.pocket12_length")

# Sketch on an angled plane
sketch14 = doc.addObject("Sketcher::SketchObject", "Sketch013")
body.addObject(sketch14)
sketch14.Placement = App.Placement(App.Vector(-4.742636, 4.742636, 0), App.Rotation(App.Vector(0, 0, -1), App.Vector(0.707106781, 0.707106781, 0), App.Vector(0.707106781, -0.707106781, 0), "ZXY"))
sketch14.addGeometry([
    Part.LineSegment(App.Vector(-45.4, 12.5, 0), App.Vector(-45.4, 11.1, 0)),
    Part.LineSegment(App.Vector(-45.4, 11.1, 0), App.Vector(-38.9, 11.1, 0)),
    Part.LineSegment(App.Vector(-38.9, 11.1, 0), App.Vector(-38.9, 12.5, 0)),
    Part.LineSegment(App.Vector(-38.9, 12.5, 0), App.Vector(-45.4, 12.5, 0)),
], False)
sketch14.addConstraint([
    Sketcher.Constraint("Coincident", 0, 2, 1, 1),
    Sketcher.Constraint("Coincident", 1, 2, 2, 1),
    Sketcher.Constraint("Coincident", 2, 2, 3, 1),
    Sketcher.Constraint("Coincident", 3, 2, 0, 1),
    Sketcher.Constraint("Vertical", 0),
    Sketcher.Constraint("Horizontal", 1),
    Sketcher.Constraint("Vertical", 2),
    Sketcher.Constraint("Horizontal", 3),
    Sketcher.Constraint("DistanceX", 1, 1, 1, 2, 6.5),
    Sketcher.Constraint("DistanceX", 0, 2, -1, 1, 45.4),
    Sketcher.Constraint("DistanceY", 0, 2, 0, 1, 1.414214),
    Sketcher.Constraint("DistanceY", -1, 1, 0, 2, 11.079022),
])
sketch14.setExpression("Constraints[8]", "Params.sketch14_width")
pocket13 = doc.addObject("PartDesign::Pocket", "Pocket012")
body.addObject(pocket13)
pocket13.Profile = sketch14
pocket13.setExpression("Length", "Params.pocket13_length")

# Sketch on XZ plane
sketch15 = doc.addObject("Sketcher::SketchObject", "Sketch014")
body.addObject(sketch15)
sketch15.AttachmentSupport = (doc.XZ_Plane, [""])
sketch15.MapMode = "FlatFace"
sketch15.AttachmentOffset = App.Placement(App.Vector(0, 0, -12.576688), App.Rotation())
sketch15.addGeometry([
    Part.LineSegment(App.Vector(-3, 45, 0), App.Vector(-3, 39, 0)),
    Part.LineSegment(App.Vector(-3, 39, 0), App.Vector(3, 39, 0)),
    Part.LineSegment(App.Vector(3, 39, 0), App.Vector(3, 45, 0)),
    Part.LineSegment(App.Vector(3, 45, 0), App.Vector(-3, 45, 0)),
], False)
sketch15.addConstraint([
    Sketcher.Constraint("Coincident", 0, 2, 1, 1),
    Sketcher.Constraint("Coincident", 1, 2, 2, 1),
    Sketcher.Constraint("Coincident", 2, 2, 3, 1),
    Sketcher.Constraint("Coincident", 3, 2, 0, 1),
    Sketcher.Constraint("Vertical", 0),
    Sketcher.Constraint("Horizontal", 1),
    Sketcher.Constraint("Vertical", 2),
    Sketcher.Constraint("Horizontal", 3),
    Sketcher.Constraint("DistanceX", 1, 1, 1, 2, 6.4),
    Sketcher.Constraint("DistanceY", 0, 2, 0, 1, 6.5),
    Sketcher.Constraint("DistanceY", -1, 1, 0, 2, 38.9),
    Sketcher.Constraint("DistanceX", 0, 2, -1, 1, 3.308584),
])
sketch15.setExpression("Constraints[8]", "Params.sketch15_width")
sketch15.setExpression("Constraints[9]", "Params.sketch15_height")
pocket14 = doc.addObject("PartDesign::Pocket", "Pocket013")
body.addObject(pocket14)
pocket14.Profile = sketch15
pocket14.setExpression("Length", "Params.pocket14_length")

# Sketch on an angled plane
sketch16 = doc.addObject("Sketcher::SketchObject", "Sketch015")
body.addObject(sketch16)
sketch16.Placement = App.Placement(App.Vector(-22.242636, 22.242636, 0), App.Rotation(App.Vector(0, 0, 1), App.Vector(0.707106781, 0.707106781, 0), App.Vector(-0.707106781, 0.707106781, 0), "ZXY"))
sketch16.addGeometry([
    Part.LineSegment(App.Vector(38.9, 0.5, 0), App.Vector(38.9, -0.9, 0)),
    Part.LineSegment(App.Vector(38.9, -0.9, 0), App.Vector(45.4, -0.9, 0)),
    Part.LineSegment(App.Vector(45.4, -0.9, 0), App.Vector(45.4, 0.5, 0)),
    Part.LineSegment(App.Vector(45.4, 0.5, 0), App.Vector(38.9, 0.5, 0)),
], False)
sketch16.addConstraint([
    Sketcher.Constraint("Coincident", 0, 2, 1, 1),
    Sketcher.Constraint("Coincident", 1, 2, 2, 1),
    Sketcher.Constraint("Coincident", 2, 2, 3, 1),
    Sketcher.Constraint("Coincident", 3, 2, 0, 1),
    Sketcher.Constraint("Vertical", 0),
    Sketcher.Constraint("Horizontal", 1),
    Sketcher.Constraint("Vertical", 2),
    Sketcher.Constraint("Horizontal", 3),
    Sketcher.Constraint("DistanceX", 1, 1, 1, 2, 6.5),
    Sketcher.Constraint("DistanceX", -1, 1, 0, 2, 38.9),
    Sketcher.Constraint("DistanceY", 0, 2, 0, 1, 1.414214),
    Sketcher.Constraint("DistanceY", -1, 1, 2, 2, 0.472421),
])
sketch16.setExpression("Constraints[8]", "Params.sketch16_width")
pocket15 = doc.addObject("PartDesign::Pocket", "Pocket014")
body.addObject(pocket15)
pocket15.Profile = sketch16
pocket15.setExpression("Length", "Params.pocket15_length")

# Sketch on YZ plane
sketch17 = doc.addObject("Sketcher::SketchObject", "Sketch016")
body.addObject(sketch17)
sketch17.AttachmentSupport = (doc.YZ_Plane, [""])
sketch17.MapMode = "FlatFace"
sketch17.AttachmentOffset = App.Placement(App.Vector(0, 0, -22.908584), App.Rotation())
sketch17.addGeometry([
    Part.LineSegment(App.Vector(22, 39, 0), App.Vector(14, 39, 0)),
    Part.LineSegment(App.Vector(14, 39, 0), App.Vector(14, 45, 0)),
    Part.LineSegment(App.Vector(14, 45, 0), App.Vector(22, 45, 0)),
    Part.LineSegment(App.Vector(22, 45, 0), App.Vector(22, 39, 0)),
], False)
sketch17.addConstraint([
    Sketcher.Constraint("Coincident", 0, 2, 1, 1),
    Sketcher.Constraint("Coincident", 1, 2, 2, 1),
    Sketcher.Constraint("Coincident", 2, 2, 3, 1),
    Sketcher.Constraint("Coincident", 3, 2, 0, 1),
    Sketcher.Constraint("Horizontal", 0),
    Sketcher.Constraint("Vertical", 1),
    Sketcher.Constraint("Horizontal", 2),
    Sketcher.Constraint("Vertical", 3),
    Sketcher.Constraint("DistanceX", 0, 2, 0, 1, 8.0),
    Sketcher.Constraint("DistanceY", 1, 1, 1, 2, 6.5),
    Sketcher.Constraint("DistanceY", -1, 1, 0, 2, 38.9),
    Sketcher.Constraint("DistanceX", -1, 1, 0, 2, 13.576688),
])
sketch17.setExpression("Constraints[8]", "Params.sketch17_width")
sketch17.setExpression("Constraints[9]", "Params.sketch17_height")
pocket16 = doc.addObject("PartDesign::Pocket", "Pocket015")
body.addObject(pocket16)
pocket16.Profile = sketch17
pocket16.setExpression("Length", "Params.pocket16_length")
pocket16.Reversed = True

# Sketch on an angled plane
sketch18 = doc.addObject("Sketcher::SketchObject", "Sketch017")
body.addObject(sketch18)
sketch18.Placement = App.Placement(App.Vector(-4.665948, -4.665948, 0), App.Rotation(App.Vector(0, 0, 1), App.Vector(-0.707106781, 0.707106781, 0), App.Vector(-0.707106781, -0.707106781, 0), "ZXY"))
sketch18.addGeometry([
    Part.LineSegment(App.Vector(38.9, 25.8, 0), App.Vector(38.9, 24.4, 0)),
    Part.LineSegment(App.Vector(38.9, 24.4, 0), App.Vector(45.4, 24.4, 0)),
    Part.LineSegment(App.Vector(45.4, 24.4, 0), App.Vector(45.4, 25.8, 0)),
    Part.LineSegment(App.Vector(45.4, 25.8, 0), App.Vector(38.9, 25.8, 0)),
], False)
sketch18.addConstraint([
    Sketcher.Constraint("Coincident", 0, 2, 1, 1),
    Sketcher.Constraint("Coincident", 1, 2, 2, 1),
    Sketcher.Constraint("Coincident", 2, 2, 3, 1),
    Sketcher.Constraint("Coincident", 3, 2, 0, 1),
    Sketcher.Constraint("Vertical", 0),
    Sketcher.Constraint("Horizontal", 1),
    Sketcher.Constraint("Vertical", 2),
    Sketcher.Constraint("Horizontal", 3),
    Sketcher.Constraint("DistanceX", 1, 1, 1, 2, 6.5),
    Sketcher.Constraint("DistanceX", -1, 1, 0, 2, 38.9),
    Sketcher.Constraint("DistanceY", 0, 2, 0, 1, 1.414214),
    Sketcher.Constraint("DistanceY", -1, 1, 0, 2, 24.384769),
])
sketch18.setExpression("Constraints[8]", "Params.sketch18_width")
pocket17 = doc.addObject("PartDesign::Pocket", "Pocket016")
body.addObject(pocket17)
pocket17.Profile = sketch18
pocket17.setExpression("Length", "Params.pocket17_length")

# Sketch on XZ plane
sketch19 = doc.addObject("Sketcher::SketchObject", "Sketch018")
body.addObject(sketch19)
sketch19.AttachmentSupport = (doc.XZ_Plane, [""])
sketch19.MapMode = "FlatFace"
sketch19.AttachmentOffset = App.Placement(App.Vector(0, 0, -12.576688), App.Rotation())
sketch19.addGeometry([
    Part.LineSegment(App.Vector(-22, 45, 0), App.Vector(-22, 39, 0)),
    Part.LineSegment(App.Vector(-22, 39, 0), App.Vector(-16, 39, 0)),
    Part.LineSegment(App.Vector(-16, 39, 0), App.Vector(-16, 45, 0)),
    Part.LineSegment(App.Vector(-16, 45, 0), App.Vector(-22, 45, 0)),
], False)
sketch19.addConstraint([
    Sketcher.Constraint("Coincident", 0, 2, 1, 1),
    Sketcher.Constraint("Coincident", 1, 2, 2, 1),
    Sketcher.Constraint("Coincident", 2, 2, 3, 1),
    Sketcher.Constraint("Coincident", 3, 2, 0, 1),
    Sketcher.Constraint("Vertical", 0),
    Sketcher.Constraint("Horizontal", 1),
    Sketcher.Constraint("Vertical", 2),
    Sketcher.Constraint("Horizontal", 3),
    Sketcher.Constraint("DistanceX", 1, 1, 1, 2, 6.4),
    Sketcher.Constraint("DistanceY", 0, 2, 0, 1, 6.5),
    Sketcher.Constraint("DistanceY", -1, 1, 0, 2, 38.9),
    Sketcher.Constraint("DistanceX", 0, 2, -1, 1, 21.908584),
])
sketch19.setExpression("Constraints[8]", "Params.sketch19_width")
sketch19.setExpression("Constraints[9]", "Params.sketch19_height")
pocket18 = doc.addObject("PartDesign::Pocket", "Pocket017")
body.addObject(pocket18)
pocket18.Profile = sketch19
pocket18.setExpression("Length", "Params.pocket18_length")

# Sketch on XZ plane
sketch20 = doc.addObject("Sketcher::SketchObject", "Sketch019")
body.addObject(sketch20)
sketch20.AttachmentSupport = (doc.XZ_Plane, [""])
sketch20.MapMode = "FlatFace"
sketch20.AttachmentOffset = App.Placement(App.Vector(0, 0, -22.576688), App.Rotation())
sketch20.addGeometry([
    Part.Circle(App.Vector(-19.4, 12.7, 0), App.Vector(0, 0, 1), 1.5),
    Part.Circle(App.Vector(0.6, 12.7, 0), App.Vector(0, 0, 1), 1.5),
    Part.Circle(App.Vector(0.6, 32.7, 0), App.Vector(0, 0, 1), 1.5),
    Part.Circle(App.Vector(-19.4, 32.7, 0), App.Vector(0, 0, 1), 1.5),
], False)
sketch20.addConstraint([
    Sketcher.Constraint("Equal", 0, 1),
    Sketcher.Constraint("Equal", 1, 2),
    Sketcher.Constraint("Equal", 2, 3),
    Sketcher.Constraint("Horizontal", 0, 3, 1, 3),
    Sketcher.Constraint("Horizontal", 2, 3, 3, 3),
    Sketcher.Constraint("Vertical", 1, 3, 2, 3),
    Sketcher.Constraint("Vertical", 0, 3, 3, 3),
    Sketcher.Constraint("Diameter", 0, 3.0),
    Sketcher.Constraint("DistanceX", 0, 3, 1, 3, 20.0),
    Sketcher.Constraint("DistanceY", 1, 3, 2, 3, 20.0),
    Sketcher.Constraint("DistanceY", -1, 1, 0, 3, 12.7),
    Sketcher.Constraint("DistanceX", 0, 3, -1, 1, 19.408584),
])
sketch20.setExpression("Constraints[7]", "Params.sketch20_diameter")
pocket19 = doc.addObject("PartDesign::Pocket", "Pocket018")
body.addObject(pocket19)
pocket19.Profile = sketch20
pocket19.setExpression("Length", "Params.pocket19_length")
pocket19.Reversed = True

# Sketch on XY plane
sketch21 = doc.addObject("Sketcher::SketchObject", "Sketch020")
body.addObject(sketch21)
sketch21.AttachmentSupport = (doc.XY_Plane, [""])
sketch21.MapMode = "FlatFace"
sketch21.AttachmentOffset = App.Placement(App.Vector(0, 0, 45.4), App.Rotation())
sketch21.addGeometry([
    Part.Circle(App.Vector(-16.4, 19.6, 0), App.Vector(0, 0, 1), 1.5),
    Part.Circle(App.Vector(-2.4, 19.6, 0), App.Vector(0, 0, 1), 1.5),
], False)
sketch21.addConstraint([
    Sketcher.Constraint("Equal", 0, 1),
    Sketcher.Constraint("Horizontal", 0, 3, 1, 3),
    Sketcher.Constraint("Diameter", 0, 3.0),
    Sketcher.Constraint("DistanceX", 0, 3, 1, 3, 14.0),
    Sketcher.Constraint("DistanceX", 0, 3, -1, 1, 16.408584),
    Sketcher.Constraint("DistanceY", -1, 1, 0, 3, 19.576688),
])
sketch21.setExpression("Constraints[2]", "Params.sketch21_diameter")
pocket20 = doc.addObject("PartDesign::Pocket", "Pocket019")
body.addObject(pocket20)
pocket20.Profile = sketch21
pocket20.setExpression("Length", "Params.pocket20_length")

# Sketch on XY plane
sketch22 = doc.addObject("Sketcher::SketchObject", "Sketch021")
body.addObject(sketch22)
sketch22.AttachmentSupport = (doc.XY_Plane, [""])
sketch22.MapMode = "FlatFace"
sketch22.AttachmentOffset = App.Placement(App.Vector(0, 0, 3.5), App.Rotation())
sketch22.addGeometry([
    Part.Circle(App.Vector(-2.4, 19.6, 0), App.Vector(0, 0, 1), 1.5),
    Part.Circle(App.Vector(-16.4, 19.6, 0), App.Vector(0, 0, 1), 1.5),
], False)
sketch22.addConstraint([
    Sketcher.Constraint("Equal", 0, 1),
    Sketcher.Constraint("Horizontal", 0, 3, 1, 3),
    Sketcher.Constraint("Diameter", 0, 3.0),
    Sketcher.Constraint("DistanceX", 1, 3, 0, 3, 14.0),
    Sketcher.Constraint("DistanceX", 0, 3, -1, 1, 2.408584),
    Sketcher.Constraint("DistanceY", -1, 1, 0, 3, 19.576688),
])
sketch22.setExpression("Constraints[2]", "Params.sketch22_diameter")
pocket21 = doc.addObject("PartDesign::Pocket", "Pocket020")
body.addObject(pocket21)
pocket21.Profile = sketch22
pocket21.setExpression("Length", "Params.pocket21_length")

doc.recompute()
